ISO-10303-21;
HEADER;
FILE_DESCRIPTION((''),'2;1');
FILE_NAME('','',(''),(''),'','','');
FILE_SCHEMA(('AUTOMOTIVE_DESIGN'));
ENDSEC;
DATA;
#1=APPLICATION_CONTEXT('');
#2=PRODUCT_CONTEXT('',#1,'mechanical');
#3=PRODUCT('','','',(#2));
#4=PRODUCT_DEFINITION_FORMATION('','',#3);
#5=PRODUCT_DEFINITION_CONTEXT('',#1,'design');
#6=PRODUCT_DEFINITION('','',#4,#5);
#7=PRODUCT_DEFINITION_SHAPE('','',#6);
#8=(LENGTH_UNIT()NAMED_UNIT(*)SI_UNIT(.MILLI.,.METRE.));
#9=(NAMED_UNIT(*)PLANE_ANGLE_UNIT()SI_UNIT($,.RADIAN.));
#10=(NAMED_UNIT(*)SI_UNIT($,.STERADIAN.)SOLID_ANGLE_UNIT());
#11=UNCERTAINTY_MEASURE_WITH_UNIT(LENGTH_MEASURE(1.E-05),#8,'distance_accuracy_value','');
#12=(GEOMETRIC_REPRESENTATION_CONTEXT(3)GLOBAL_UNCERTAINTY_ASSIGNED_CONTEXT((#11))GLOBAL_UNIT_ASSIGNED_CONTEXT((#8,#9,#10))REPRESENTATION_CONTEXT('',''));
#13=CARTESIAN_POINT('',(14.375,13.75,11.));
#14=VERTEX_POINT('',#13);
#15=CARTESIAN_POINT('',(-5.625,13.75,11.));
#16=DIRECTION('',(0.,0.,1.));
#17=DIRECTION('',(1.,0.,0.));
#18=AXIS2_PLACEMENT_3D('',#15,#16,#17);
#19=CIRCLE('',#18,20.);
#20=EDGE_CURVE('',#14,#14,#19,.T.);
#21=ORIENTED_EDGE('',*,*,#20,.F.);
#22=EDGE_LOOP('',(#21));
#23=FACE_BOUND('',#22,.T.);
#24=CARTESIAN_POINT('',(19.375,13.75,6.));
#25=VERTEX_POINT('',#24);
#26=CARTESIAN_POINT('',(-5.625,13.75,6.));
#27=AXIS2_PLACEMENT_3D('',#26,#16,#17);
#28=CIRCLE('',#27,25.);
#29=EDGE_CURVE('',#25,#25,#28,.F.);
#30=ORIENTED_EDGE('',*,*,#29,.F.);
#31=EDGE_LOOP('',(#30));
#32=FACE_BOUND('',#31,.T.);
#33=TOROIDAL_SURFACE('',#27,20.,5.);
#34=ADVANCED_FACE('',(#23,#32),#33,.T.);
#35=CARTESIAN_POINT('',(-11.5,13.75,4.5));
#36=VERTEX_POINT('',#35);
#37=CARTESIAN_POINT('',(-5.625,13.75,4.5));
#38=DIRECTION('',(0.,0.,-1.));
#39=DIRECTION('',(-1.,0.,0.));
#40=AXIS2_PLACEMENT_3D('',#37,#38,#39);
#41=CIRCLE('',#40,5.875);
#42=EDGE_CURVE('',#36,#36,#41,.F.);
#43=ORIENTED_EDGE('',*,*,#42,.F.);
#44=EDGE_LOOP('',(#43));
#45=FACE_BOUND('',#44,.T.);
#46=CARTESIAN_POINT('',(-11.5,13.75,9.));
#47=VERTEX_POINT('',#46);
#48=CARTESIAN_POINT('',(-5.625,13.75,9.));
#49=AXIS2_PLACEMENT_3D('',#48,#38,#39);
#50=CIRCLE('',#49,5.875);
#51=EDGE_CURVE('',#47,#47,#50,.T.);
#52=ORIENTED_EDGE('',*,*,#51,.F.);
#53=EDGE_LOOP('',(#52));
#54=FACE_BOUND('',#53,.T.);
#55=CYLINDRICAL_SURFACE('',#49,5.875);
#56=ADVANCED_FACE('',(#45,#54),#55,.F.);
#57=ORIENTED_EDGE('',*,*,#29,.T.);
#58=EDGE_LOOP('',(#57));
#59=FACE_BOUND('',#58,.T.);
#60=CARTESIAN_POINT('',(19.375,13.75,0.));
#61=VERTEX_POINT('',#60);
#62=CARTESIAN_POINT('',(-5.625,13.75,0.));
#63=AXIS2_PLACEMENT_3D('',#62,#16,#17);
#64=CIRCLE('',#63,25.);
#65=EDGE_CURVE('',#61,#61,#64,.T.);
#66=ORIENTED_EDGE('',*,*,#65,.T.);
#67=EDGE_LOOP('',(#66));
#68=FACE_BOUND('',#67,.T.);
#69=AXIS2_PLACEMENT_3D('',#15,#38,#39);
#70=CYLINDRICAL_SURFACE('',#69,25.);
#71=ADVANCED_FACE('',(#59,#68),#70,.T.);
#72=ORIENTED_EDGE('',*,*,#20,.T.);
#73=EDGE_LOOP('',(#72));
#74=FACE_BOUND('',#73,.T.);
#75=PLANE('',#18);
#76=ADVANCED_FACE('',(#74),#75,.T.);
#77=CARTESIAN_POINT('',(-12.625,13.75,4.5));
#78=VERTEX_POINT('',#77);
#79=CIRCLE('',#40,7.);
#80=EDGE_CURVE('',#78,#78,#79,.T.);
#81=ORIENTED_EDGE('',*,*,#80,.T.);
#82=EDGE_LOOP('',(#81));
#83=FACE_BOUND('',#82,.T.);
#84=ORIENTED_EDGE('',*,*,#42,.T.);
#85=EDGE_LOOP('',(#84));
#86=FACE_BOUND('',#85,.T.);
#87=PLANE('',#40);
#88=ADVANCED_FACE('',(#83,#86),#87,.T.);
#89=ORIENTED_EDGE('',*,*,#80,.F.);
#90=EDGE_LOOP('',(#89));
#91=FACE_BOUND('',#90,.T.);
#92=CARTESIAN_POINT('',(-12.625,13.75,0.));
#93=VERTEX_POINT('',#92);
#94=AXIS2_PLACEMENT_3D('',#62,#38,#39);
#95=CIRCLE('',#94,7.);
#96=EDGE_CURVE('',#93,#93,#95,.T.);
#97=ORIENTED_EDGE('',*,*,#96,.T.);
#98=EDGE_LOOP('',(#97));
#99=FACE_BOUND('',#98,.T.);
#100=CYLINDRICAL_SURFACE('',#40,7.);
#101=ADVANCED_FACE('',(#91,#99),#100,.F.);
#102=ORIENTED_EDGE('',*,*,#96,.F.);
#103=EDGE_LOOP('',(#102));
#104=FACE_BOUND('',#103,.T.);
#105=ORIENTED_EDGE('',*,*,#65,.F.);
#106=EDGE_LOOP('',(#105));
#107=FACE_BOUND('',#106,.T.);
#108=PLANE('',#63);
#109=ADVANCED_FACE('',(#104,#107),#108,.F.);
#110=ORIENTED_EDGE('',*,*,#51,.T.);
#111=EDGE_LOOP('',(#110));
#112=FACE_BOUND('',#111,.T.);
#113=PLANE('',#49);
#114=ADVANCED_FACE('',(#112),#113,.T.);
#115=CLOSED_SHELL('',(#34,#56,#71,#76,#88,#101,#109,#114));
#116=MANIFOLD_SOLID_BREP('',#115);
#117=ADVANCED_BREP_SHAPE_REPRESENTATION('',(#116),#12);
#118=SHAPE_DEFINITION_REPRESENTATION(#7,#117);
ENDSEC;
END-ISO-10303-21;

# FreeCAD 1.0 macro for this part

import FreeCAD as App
import Part
import Sketcher
from FreeCAD import Vector


def edges_at(feature, points):
    """Names of the edges that pass closest to the given points."""
    edges = feature.Shape.Edges
    near = lambda p: min(range(len(edges)), key=lambda i: edges[i].distToShape(Part.Vertex(*p))[0])
    return sorted({f"Edge{near(p) + 1}" for p in points})

doc = App.newDocument("Part")
body = doc.addObject("PartDesign::Body", "Body")

# Sketch on XY plane
sketch1 = body.newObject("Sketcher::SketchObject", "Sketch")
sketch1.AttachmentSupport = (doc.getObject("XY_Plane"), [""])
sketch1.MapMode = "FlatFace"
sketch1.addGeometry(Part.Circle(Vector(-6, 14, 0), Vector(0, 0, 1), 25), False)
sketch1.addConstraint([
    Sketcher.Constraint("Diameter", 0, 50.0),
    Sketcher.Constraint("DistanceY", -1, 1, 0, 3, 13.75),
    Sketcher.Constraint("DistanceX", 0, 3, -1, 1, 5.625),
])
pad1 = body.newObject("PartDesign::Pad", "Pad")
pad1.Profile = sketch1
pad1.Length = 11
doc.recompute()

fillet = body.newObject("PartDesign::Fillet", "Fillet")
fillet.Base = (pad1, edges_at(pad1, [(-30.625, 13.75, 11)]))
fillet.Radius = 5

# Sketch on XY plane
sketch2 = body.newObject("Sketcher::SketchObject", "Sketch001")
sketch2.AttachmentSupport = (doc.getObject("XY_Plane"), [""])
sketch2.MapMode = "FlatFace"
sketch2.addGeometry(Part.Circle(Vector(-6, 14, 0), Vector(0, 0, 1), 6), False)
sketch2.addConstraint([
    Sketcher.Constraint("Diameter", 0, 11.75),
    Sketcher.Constraint("DistanceY", -1, 1, 0, 3, 13.75),
    Sketcher.Constraint("DistanceX", 0, 3, -1, 1, 5.625),
])
pocket1 = body.newObject("PartDesign::Pocket", "Pocket")
pocket1.Profile = sketch2
pocket1.Length = 9
pocket1.Reversed = True

# Sketch on XY plane
sketch3 = body.newObject("Sketcher::SketchObject", "Sketch002")
sketch3.AttachmentSupport = (doc.getObject("XY_Plane"), [""])
sketch3.MapMode = "FlatFace"
sketch3.addGeometry(Part.Circle(Vector(-6, 14, 0), Vector(0, 0, 1), 7), False)
sketch3.addConstraint([
    Sketcher.Constraint("Diameter", 0, 14.0),
    Sketcher.Constraint("DistanceY", -1, 1, 0, 3, 13.75),
    Sketcher.Constraint("DistanceX", 0, 3, -1, 1, 5.625),
])
pocket2 = body.newObject("PartDesign::Pocket", "Pocket001")
pocket2.Profile = sketch3
pocket2.Length = 4.5
pocket2.Reversed = True

doc.recompute()
